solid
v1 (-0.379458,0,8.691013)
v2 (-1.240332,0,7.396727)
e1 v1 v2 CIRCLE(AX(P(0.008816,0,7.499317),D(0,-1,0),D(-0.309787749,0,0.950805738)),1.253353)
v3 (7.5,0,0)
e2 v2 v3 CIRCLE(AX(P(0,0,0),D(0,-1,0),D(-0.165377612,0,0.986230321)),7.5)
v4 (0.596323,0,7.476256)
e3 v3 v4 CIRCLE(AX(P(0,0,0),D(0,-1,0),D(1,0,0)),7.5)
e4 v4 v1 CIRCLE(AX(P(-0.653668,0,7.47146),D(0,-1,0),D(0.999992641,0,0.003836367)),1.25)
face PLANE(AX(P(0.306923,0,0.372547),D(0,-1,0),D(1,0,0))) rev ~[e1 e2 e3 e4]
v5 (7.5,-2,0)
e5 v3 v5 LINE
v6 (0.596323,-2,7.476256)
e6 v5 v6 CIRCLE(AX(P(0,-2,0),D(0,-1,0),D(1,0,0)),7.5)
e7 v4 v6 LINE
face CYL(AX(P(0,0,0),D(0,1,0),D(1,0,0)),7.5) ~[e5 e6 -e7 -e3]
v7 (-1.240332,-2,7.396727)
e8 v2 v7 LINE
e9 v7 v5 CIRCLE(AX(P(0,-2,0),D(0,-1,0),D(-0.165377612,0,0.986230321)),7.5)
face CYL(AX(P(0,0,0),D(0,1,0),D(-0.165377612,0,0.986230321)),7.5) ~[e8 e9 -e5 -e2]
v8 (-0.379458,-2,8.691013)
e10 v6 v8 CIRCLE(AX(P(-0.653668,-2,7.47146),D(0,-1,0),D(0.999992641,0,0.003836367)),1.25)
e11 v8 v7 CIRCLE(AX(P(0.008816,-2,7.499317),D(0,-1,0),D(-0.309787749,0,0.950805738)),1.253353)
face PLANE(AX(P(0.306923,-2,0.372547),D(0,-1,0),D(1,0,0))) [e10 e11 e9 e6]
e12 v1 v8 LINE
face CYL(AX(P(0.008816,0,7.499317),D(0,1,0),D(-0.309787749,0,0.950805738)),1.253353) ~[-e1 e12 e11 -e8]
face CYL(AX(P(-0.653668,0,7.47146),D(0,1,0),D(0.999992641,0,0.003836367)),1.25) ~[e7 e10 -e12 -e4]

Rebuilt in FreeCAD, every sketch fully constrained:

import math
import FreeCAD as App
import Part
import Sketcher
from FreeCAD import Vector
Q = App.Units.Quantity

doc = App.newDocument("Part")
body = doc.addObject("PartDesign::Body", "Body")

sketch1 = body.newObject("Sketcher::SketchObject", "Sketch")
sketch1.AttachmentSupport = (doc.getObject("XZ_Plane"), [""])
sketch1.MapMode = "FlatFace"
sketch1.addGeometry([
    Part.ArcOfCircle(Part.Circle(Vector(0, 0, 0), Vector(0, 0, 1), 7.5), math.radians(100), math.radians(360)),
    Part.ArcOfCircle(Part.Circle(Vector(0, 0, 0), Vector(0, 0, 1), 7.5), math.radians(0), math.radians(85)),
    Part.ArcOfCircle(Part.Circle(Vector(-0.7, 7.5, 0), Vector(0, 0, 1), 1.2), math.radians(0), math.radians(77)),
    Part.ArcOfCircle(Part.Circle(Vector(0, 7.5, 0), Vector(0, 0, 1), 1.3), math.radians(108), math.radians(185)),
], False)
sketch1.addConstraint([
    Sketcher.Constraint("Tangent", 0, 2, 1, 1),
    Sketcher.Constraint("Coincident", 1, 2, 2, 1),
    Sketcher.Constraint("Coincident", 2, 2, 3, 1),
    Sketcher.Constraint("Coincident", 3, 2, 0, 1),
    Sketcher.Constraint("Coincident", 0, 3, -1, 1),
    Sketcher.Constraint("Equal", 0, 1),
    Sketcher.Constraint("PointOnObject", 0, 2, -1),
    Sketcher.Constraint("Radius", 0, Q("7.5 mm")),
    Sketcher.Constraint("Radius", 2, Q("1.25 mm")),
    Sketcher.Constraint("Radius", 3, Q("1.253353 mm")),
    Sketcher.Constraint("DistanceX", 2, 3, -1, 1, Q("0.653668 mm")),
    Sketcher.Constraint("DistanceY", -1, 1, 2, 3, Q("7.47146 mm")),
    Sketcher.Constraint("DistanceY", 1, 2, 3, 3, Q("0.023062 mm")),
    Sketcher.Constraint("DistanceX", 2, 3, 2, 2, Q("0.27421 mm")),
])
pad1 = body.newObject("PartDesign::Pad", "Pad")
pad1.Profile = sketch1
pad1.Length = 2

doc.recompute()
